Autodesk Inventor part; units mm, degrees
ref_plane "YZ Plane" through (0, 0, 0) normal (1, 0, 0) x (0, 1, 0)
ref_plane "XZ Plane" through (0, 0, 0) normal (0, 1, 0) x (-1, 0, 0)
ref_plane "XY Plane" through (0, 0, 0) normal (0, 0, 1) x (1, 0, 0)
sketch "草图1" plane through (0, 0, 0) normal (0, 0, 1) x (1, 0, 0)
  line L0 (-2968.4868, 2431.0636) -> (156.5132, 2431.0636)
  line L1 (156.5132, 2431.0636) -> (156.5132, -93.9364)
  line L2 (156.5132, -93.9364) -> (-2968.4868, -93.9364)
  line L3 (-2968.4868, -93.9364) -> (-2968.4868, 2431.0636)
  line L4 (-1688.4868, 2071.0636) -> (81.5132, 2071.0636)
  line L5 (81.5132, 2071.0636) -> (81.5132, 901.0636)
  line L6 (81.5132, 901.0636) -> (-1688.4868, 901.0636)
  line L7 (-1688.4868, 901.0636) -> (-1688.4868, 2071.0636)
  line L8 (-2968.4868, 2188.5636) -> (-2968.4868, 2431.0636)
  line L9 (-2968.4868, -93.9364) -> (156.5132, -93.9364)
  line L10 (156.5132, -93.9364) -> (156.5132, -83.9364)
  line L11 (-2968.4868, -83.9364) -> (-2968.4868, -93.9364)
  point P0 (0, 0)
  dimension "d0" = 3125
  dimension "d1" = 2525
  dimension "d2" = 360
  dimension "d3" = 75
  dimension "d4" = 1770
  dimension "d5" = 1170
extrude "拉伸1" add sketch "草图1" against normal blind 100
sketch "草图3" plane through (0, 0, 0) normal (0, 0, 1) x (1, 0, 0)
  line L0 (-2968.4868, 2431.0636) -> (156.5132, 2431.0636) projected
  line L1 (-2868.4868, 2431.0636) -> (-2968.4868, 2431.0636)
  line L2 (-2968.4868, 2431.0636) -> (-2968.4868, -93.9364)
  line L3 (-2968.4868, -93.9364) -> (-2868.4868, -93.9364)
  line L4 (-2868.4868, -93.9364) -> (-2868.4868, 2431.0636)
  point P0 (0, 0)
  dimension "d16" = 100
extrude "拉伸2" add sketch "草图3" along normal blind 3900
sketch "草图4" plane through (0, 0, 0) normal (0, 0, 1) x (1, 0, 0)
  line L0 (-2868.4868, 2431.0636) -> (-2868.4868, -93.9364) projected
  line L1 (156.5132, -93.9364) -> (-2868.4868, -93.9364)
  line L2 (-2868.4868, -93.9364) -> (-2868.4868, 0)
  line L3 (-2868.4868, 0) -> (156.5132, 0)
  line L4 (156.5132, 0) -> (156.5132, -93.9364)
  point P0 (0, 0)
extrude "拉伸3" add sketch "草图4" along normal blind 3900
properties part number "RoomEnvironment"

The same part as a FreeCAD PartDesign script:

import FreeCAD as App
import Part
import Sketcher
from FreeCAD import Vector
Q = App.Units.Quantity

doc = App.newDocument("Part")
params = doc.addObject("Spreadsheet::Sheet", "Params")
for row, (alias, value) in enumerate([
    ("sketch1_width", "3125 mm"),
    ("sketch1_width2", "1770 mm"),
    ("sketch1_height", "2525 mm"),
    ("sketch1_height2", "1170 mm"),
    ("pad1_length", "100 mm"),
    ("sketch2_width", "100 mm"),
    ("sketch2_height", "2525 mm"),
    ("pad2_length", "3900 mm"),
    ("sketch3_width", "3025 mm"),
    ("pad3_length", "3900 mm"),
], start=1):
    params.set(f"A{row}", alias)
    params.set(f"B{row}", "=" + value)
    params.setAlias(f"B{row}", alias)

body = doc.addObject("PartDesign::Body", "Body")

# Sketch on XY plane
sketch1 = body.newObject("Sketcher::SketchObject", "Sketch")
sketch1.AttachmentSupport = (doc.getObject("XY_Plane"), [""])
sketch1.MapMode = "FlatFace"
sketch1.addGeometry(Part.LineSegment(Vector(156.5132, 2431.0636, 0), Vector(-2968.4868, 2431.0636, 0)), False)
sketch1.addGeometry(Part.LineSegment(Vector(-2968.4868, 2431.0636, 0), Vector(-2968.4868, -93.9364, 0)), False)
sketch1.addGeometry(Part.LineSegment(Vector(-2968.4868, -93.9364, 0), Vector(156.5132, -93.9364, 0)), False)
sketch1.addGeometry(Part.LineSegment(Vector(156.5132, -93.9364, 0), Vector(156.5132, 2431.0636, 0)), False)
sketch1.addGeometry(Part.LineSegment(Vector(-1688.4868, 901.0636, 0), Vector(-1688.4868, 2071.0636, 0)), False)
sketch1.addGeometry(Part.LineSegment(Vector(-1688.4868, 2071.0636, 0), Vector(81.5132, 2071.0636, 0)), False)
sketch1.addGeometry(Part.LineSegment(Vector(81.5132, 2071.0636, 0), Vector(81.5132, 901.0636, 0)), False)
sketch1.addGeometry(Part.LineSegment(Vector(81.5132, 901.0636, 0), Vector(-1688.4868, 901.0636, 0)), False)
sketch1.addConstraint(Sketcher.Constraint("Coincident", 0, 2, 1, 1))
sketch1.addConstraint(Sketcher.Constraint("Coincident", 1, 2, 2, 1))
sketch1.addConstraint(Sketcher.Constraint("Coincident", 2, 2, 3, 1))
sketch1.addConstraint(Sketcher.Constraint("Coincident", 3, 2, 0, 1))
sketch1.addConstraint(Sketcher.Constraint("Coincident", 4, 2, 5, 1))
sketch1.addConstraint(Sketcher.Constraint("Coincident", 5, 2, 6, 1))
sketch1.addConstraint(Sketcher.Constraint("Coincident", 6, 2, 7, 1))
sketch1.addConstraint(Sketcher.Constraint("Coincident", 7, 2, 4, 1))
sketch1.addConstraint(Sketcher.Constraint("Horizontal", 0))
sketch1.addConstraint(Sketcher.Constraint("Vertical", 1))
sketch1.addConstraint(Sketcher.Constraint("Horizontal", 2))
sketch1.addConstraint(Sketcher.Constraint("Vertical", 3))
sketch1.addConstraint(Sketcher.Constraint("Vertical", 4))
sketch1.addConstraint(Sketcher.Constraint("Horizontal", 5))
sketch1.addConstraint(Sketcher.Constraint("Vertical", 6))
sketch1.addConstraint(Sketcher.Constraint("Horizontal", 7))
sketch1.addConstraint(Sketcher.Constraint("DistanceX", 0, 2, 0, 1, Q("3125 mm")))
sketch1.addConstraint(Sketcher.Constraint("DistanceX", 5, 1, 5, 2, Q("1770 mm")))
sketch1.addConstraint(Sketcher.Constraint("DistanceY", 1, 2, 1, 1, Q("2525 mm")))
sketch1.addConstraint(Sketcher.Constraint("DistanceY", 4, 1, 4, 2, Q("1170 mm")))
sketch1.addConstraint(Sketcher.Constraint("DistanceY", 4, 2, 0, 2, Q("360 mm")))
sketch1.addConstraint(Sketcher.Constraint("DistanceX", 5, 2, 3, 2, Q("75 mm")))
sketch1.addConstraint(Sketcher.Constraint("DistanceX", 0, 2, -1, 1, Q("2968.4868 mm")))
sketch1.addConstraint(Sketcher.Constraint("DistanceY", -1, 1, 0, 2, Q("2431.0636 mm")))
sketch1.setExpression("Constraints[16]", "Params.sketch1_width")
sketch1.setExpression("Constraints[17]", "Params.sketch1_width2")
sketch1.setExpression("Constraints[18]", "Params.sketch1_height")
sketch1.setExpression("Constraints[19]", "Params.sketch1_height2")
pad1 = body.newObject("PartDesign::Pad", "Pad")
pad1.Profile = sketch1
pad1.setExpression("Length", "Params.pad1_length")
pad1.Reversed = True

# Sketch on XY plane
sketch2 = body.newObject("Sketcher::SketchObject", "Sketch001")
sketch2.AttachmentSupport = (doc.getObject("XY_Plane"), [""])
sketch2.MapMode = "FlatFace"
sketch2.addGeometry(Part.LineSegment(Vector(-2868.4868, 2431.0636, 0), Vector(-2968.4868, 2431.0636, 0)), False)
sketch2.addGeometry(Part.LineSegment(Vector(-2968.4868, 2431.0636, 0), Vector(-2968.4868, -93.9364, 0)), False)
sketch2.addGeometry(Part.LineSegment(Vector(-2968.4868, -93.9364, 0), Vector(-2868.4868, -93.9364, 0)), False)
sketch2.addGeometry(Part.LineSegment(Vector(-2868.4868, -93.9364, 0), Vector(-2868.4868, 2431.0636, 0)), False)
sketch2.addConstraint(Sketcher.Constraint("Coincident", 0, 2, 1, 1))
sketch2.addConstraint(Sketcher.Constraint("Coincident", 1, 2, 2, 1))
sketch2.addConstraint(Sketcher.Constraint("Coincident", 2, 2, 3, 1))
sketch2.addConstraint(Sketcher.Constraint("Coincident", 3, 2, 0, 1))
sketch2.addConstraint(Sketcher.Constraint("Horizontal", 0))
sketch2.addConstraint(Sketcher.Constraint("Vertical", 1))
sketch2.addConstraint(Sketcher.Constraint("Horizontal", 2))
sketch2.addConstraint(Sketcher.Constraint("Vertical", 3))
sketch2.addConstraint(Sketcher.Constraint("DistanceX", 0, 2, 0, 1, Q("100 mm")))
sketch2.addConstraint(Sketcher.Constraint("DistanceY", 1, 2, 1, 1, Q("2525 mm")))
sketch2.addConstraint(Sketcher.Constraint("DistanceX", 0, 2, -1, 1, Q("2968.4868 mm")))
sketch2.addConstraint(Sketcher.Constraint("DistanceY", -1, 1, 0, 2, Q("2431.0636 mm")))
sketch2.setExpression("Constraints[8]", "Params.sketch2_width")
sketch2.setExpression("Constraints[9]", "Params.sketch2_height")
pad2 = body.newObject("PartDesign::Pad", "Pad001")
pad2.Profile = sketch2
pad2.setExpression("Length", "Params.pad2_length")

# Sketch on XY plane
sketch3 = body.newObject("Sketcher::SketchObject", "Sketch002")
sketch3.AttachmentSupport = (doc.getObject("XY_Plane"), [""])
sketch3.MapMode = "FlatFace"
sketch3.addGeometry(Part.LineSegment(Vector(156.5132, 0, 0), Vector(-2868.4868, 0, 0)), False)
sketch3.addGeometry(Part.LineSegment(Vector(-2868.4868, 0, 0), Vector(-2868.4868, -93.9364, 0)), False)
sketch3.addGeometry(Part.LineSegment(Vector(-2868.4868, -93.9364, 0), Vector(156.5132, -93.9364, 0)), False)
sketch3.addGeometry(Part.LineSegment(Vector(156.5132, -93.9364, 0), Vector(156.5132, 0, 0)), False)
sketch3.addConstraint(Sketcher.Constraint("Coincident", 0, 2, 1, 1))
sketch3.addConstraint(Sketcher.Constraint("Coincident", 1, 2, 2, 1))
sketch3.addConstraint(Sketcher.Constraint("Coincident", 2, 2, 3, 1))
sketch3.addConstraint(Sketcher.Constraint("Coincident", 3, 2, 0, 1))
sketch3.addConstraint(Sketcher.Constraint("Horizontal", 0))
sketch3.addConstraint(Sketcher.Constraint("Vertical", 1))
sketch3.addConstraint(Sketcher.Constraint("Horizontal", 2))
sketch3.addConstraint(Sketcher.Constraint("Vertical", 3))
sketch3.addConstraint(Sketcher.Constraint("PointOnObject", 0, 2, -1))
sketch3.addConstraint(Sketcher.Constraint("DistanceX", 0, 2, 0, 1, Q("3025 mm")))
sketch3.addConstraint(Sketcher.Constraint("DistanceY", 1, 2, 1, 1, Q("93.9364 mm")))
sketch3.addConstraint(Sketcher.Constraint("DistanceX", 0, 2, -1, 1, Q("2868.4868 mm")))
sketch3.setExpression("Constraints[9]", "Params.sketch3_width")
pad3 = body.newObject("PartDesign::Pad", "Pad002")
pad3.Profile = sketch3
pad3.setExpression("Length", "Params.pad3_length")

doc.recompute()
